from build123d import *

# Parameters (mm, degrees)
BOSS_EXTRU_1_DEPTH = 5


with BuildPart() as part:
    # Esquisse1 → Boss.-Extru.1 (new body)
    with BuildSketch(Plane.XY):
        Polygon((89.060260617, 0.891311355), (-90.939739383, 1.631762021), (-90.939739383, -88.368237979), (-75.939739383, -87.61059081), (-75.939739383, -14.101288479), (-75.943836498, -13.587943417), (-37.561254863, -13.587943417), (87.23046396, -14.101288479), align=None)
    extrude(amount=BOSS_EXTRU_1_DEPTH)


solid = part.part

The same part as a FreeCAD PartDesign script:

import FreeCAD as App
import Part
import Sketcher
from FreeCAD import Vector

doc = App.newDocument("Part")
body = doc.addObject("PartDesign::Body", "Body")

# Sketch on XY plane
sketch1 = doc.addObject("Sketcher::SketchObject", "Sketch")
body.addObject(sketch1)
sketch1.AttachmentSupport = (doc.XY_Plane, [""])
sketch1.MapMode = "FlatFace"
sketch1.addGeometry([
    Part.LineSegment(Vector(89.060261, 0.891311, 0), Vector(-90.939739, 1.631762, 0)),  # 0
    Part.LineSegment(Vector(-90.939739, 1.631762, 0), Vector(-90.939739, -88.368238, 0)),  # 1
    Part.LineSegment(Vector(-90.939739, -88.368238, 0), Vector(-75.939739, -87.610591, 0)),  # 2
    Part.LineSegment(Vector(-75.939739, -87.610591, 0), Vector(-75.939739, -14.101288, 0)),  # 3
    Part.LineSegment(Vector(-75.939739, -14.101288, 0), Vector(-75.943836, -13.587943, 0)),  # 4
    Part.LineSegment(Vector(-75.943836, -13.587943, 0), Vector(-37.561255, -13.587943, 0)),  # 5
    Part.LineSegment(Vector(-37.561255, -13.587943, 0), Vector(87.230464, -14.101288, 0)),  # 6
    Part.LineSegment(Vector(87.230464, -14.101288, 0), Vector(89.060261, 0.891311, 0)),  # 7
], False)
sketch1.addConstraint([
    Sketcher.Constraint("Coincident", 0, 2, 1, 1),
    Sketcher.Constraint("Coincident", 1, 2, 2, 1),
    Sketcher.Constraint("Coincident", 2, 2, 3, 1),
    Sketcher.Constraint("Coincident", 3, 2, 4, 1),
    Sketcher.Constraint("Coincident", 4, 2, 5, 1),
    Sketcher.Constraint("Coincident", 5, 2, 6, 1),
    Sketcher.Constraint("Coincident", 6, 2, 7, 1),
    Sketcher.Constraint("Coincident", 7, 2, 0, 1),
    Sketcher.Constraint("Vertical", 1),
    Sketcher.Constraint("Vertical", 3),
    Sketcher.Constraint("Horizontal", 5),
    Sketcher.Constraint("DistanceY", 1, 2, 1, 1, 90.0),
    Sketcher.Constraint("DistanceX", 1, 2, 2, 2, 15.0),
    Sketcher.Constraint("DistanceX", 3, 2, 7, 2, 165.0),
    Sketcher.Constraint("DistanceX", 5, 1, 5, 2, 38.382582),
    Sketcher.Constraint("DistanceX", 4, 2, 6, 2, 163.1743),
    Sketcher.Constraint("DistanceY", 6, 2, 7, 2, 14.9926),
    Sketcher.Constraint("DistanceY", 3, 2, 7, 2, 14.9926),
    Sketcher.Constraint("Distance", 4, 0.513361),
    Sketcher.Constraint("DistanceY", 3, 1, 3, 2, 73.509302),
    Sketcher.Constraint("DistanceX", 0, 2, -1, 1, 90.939739),
    Sketcher.Constraint("DistanceY", 2, 2, -1, 1, 87.610591),
    Sketcher.Constraint("DistanceY", 3, 2, 0, 2, 15.733051),
    Sketcher.Constraint("Distance", 7, 15.103847),
])
pad1 = doc.addObject("PartDesign::Pad", "Pad")
body.addObject(pad1)
pad1.Profile = sketch1
pad1.Length = 5

doc.recompute()
